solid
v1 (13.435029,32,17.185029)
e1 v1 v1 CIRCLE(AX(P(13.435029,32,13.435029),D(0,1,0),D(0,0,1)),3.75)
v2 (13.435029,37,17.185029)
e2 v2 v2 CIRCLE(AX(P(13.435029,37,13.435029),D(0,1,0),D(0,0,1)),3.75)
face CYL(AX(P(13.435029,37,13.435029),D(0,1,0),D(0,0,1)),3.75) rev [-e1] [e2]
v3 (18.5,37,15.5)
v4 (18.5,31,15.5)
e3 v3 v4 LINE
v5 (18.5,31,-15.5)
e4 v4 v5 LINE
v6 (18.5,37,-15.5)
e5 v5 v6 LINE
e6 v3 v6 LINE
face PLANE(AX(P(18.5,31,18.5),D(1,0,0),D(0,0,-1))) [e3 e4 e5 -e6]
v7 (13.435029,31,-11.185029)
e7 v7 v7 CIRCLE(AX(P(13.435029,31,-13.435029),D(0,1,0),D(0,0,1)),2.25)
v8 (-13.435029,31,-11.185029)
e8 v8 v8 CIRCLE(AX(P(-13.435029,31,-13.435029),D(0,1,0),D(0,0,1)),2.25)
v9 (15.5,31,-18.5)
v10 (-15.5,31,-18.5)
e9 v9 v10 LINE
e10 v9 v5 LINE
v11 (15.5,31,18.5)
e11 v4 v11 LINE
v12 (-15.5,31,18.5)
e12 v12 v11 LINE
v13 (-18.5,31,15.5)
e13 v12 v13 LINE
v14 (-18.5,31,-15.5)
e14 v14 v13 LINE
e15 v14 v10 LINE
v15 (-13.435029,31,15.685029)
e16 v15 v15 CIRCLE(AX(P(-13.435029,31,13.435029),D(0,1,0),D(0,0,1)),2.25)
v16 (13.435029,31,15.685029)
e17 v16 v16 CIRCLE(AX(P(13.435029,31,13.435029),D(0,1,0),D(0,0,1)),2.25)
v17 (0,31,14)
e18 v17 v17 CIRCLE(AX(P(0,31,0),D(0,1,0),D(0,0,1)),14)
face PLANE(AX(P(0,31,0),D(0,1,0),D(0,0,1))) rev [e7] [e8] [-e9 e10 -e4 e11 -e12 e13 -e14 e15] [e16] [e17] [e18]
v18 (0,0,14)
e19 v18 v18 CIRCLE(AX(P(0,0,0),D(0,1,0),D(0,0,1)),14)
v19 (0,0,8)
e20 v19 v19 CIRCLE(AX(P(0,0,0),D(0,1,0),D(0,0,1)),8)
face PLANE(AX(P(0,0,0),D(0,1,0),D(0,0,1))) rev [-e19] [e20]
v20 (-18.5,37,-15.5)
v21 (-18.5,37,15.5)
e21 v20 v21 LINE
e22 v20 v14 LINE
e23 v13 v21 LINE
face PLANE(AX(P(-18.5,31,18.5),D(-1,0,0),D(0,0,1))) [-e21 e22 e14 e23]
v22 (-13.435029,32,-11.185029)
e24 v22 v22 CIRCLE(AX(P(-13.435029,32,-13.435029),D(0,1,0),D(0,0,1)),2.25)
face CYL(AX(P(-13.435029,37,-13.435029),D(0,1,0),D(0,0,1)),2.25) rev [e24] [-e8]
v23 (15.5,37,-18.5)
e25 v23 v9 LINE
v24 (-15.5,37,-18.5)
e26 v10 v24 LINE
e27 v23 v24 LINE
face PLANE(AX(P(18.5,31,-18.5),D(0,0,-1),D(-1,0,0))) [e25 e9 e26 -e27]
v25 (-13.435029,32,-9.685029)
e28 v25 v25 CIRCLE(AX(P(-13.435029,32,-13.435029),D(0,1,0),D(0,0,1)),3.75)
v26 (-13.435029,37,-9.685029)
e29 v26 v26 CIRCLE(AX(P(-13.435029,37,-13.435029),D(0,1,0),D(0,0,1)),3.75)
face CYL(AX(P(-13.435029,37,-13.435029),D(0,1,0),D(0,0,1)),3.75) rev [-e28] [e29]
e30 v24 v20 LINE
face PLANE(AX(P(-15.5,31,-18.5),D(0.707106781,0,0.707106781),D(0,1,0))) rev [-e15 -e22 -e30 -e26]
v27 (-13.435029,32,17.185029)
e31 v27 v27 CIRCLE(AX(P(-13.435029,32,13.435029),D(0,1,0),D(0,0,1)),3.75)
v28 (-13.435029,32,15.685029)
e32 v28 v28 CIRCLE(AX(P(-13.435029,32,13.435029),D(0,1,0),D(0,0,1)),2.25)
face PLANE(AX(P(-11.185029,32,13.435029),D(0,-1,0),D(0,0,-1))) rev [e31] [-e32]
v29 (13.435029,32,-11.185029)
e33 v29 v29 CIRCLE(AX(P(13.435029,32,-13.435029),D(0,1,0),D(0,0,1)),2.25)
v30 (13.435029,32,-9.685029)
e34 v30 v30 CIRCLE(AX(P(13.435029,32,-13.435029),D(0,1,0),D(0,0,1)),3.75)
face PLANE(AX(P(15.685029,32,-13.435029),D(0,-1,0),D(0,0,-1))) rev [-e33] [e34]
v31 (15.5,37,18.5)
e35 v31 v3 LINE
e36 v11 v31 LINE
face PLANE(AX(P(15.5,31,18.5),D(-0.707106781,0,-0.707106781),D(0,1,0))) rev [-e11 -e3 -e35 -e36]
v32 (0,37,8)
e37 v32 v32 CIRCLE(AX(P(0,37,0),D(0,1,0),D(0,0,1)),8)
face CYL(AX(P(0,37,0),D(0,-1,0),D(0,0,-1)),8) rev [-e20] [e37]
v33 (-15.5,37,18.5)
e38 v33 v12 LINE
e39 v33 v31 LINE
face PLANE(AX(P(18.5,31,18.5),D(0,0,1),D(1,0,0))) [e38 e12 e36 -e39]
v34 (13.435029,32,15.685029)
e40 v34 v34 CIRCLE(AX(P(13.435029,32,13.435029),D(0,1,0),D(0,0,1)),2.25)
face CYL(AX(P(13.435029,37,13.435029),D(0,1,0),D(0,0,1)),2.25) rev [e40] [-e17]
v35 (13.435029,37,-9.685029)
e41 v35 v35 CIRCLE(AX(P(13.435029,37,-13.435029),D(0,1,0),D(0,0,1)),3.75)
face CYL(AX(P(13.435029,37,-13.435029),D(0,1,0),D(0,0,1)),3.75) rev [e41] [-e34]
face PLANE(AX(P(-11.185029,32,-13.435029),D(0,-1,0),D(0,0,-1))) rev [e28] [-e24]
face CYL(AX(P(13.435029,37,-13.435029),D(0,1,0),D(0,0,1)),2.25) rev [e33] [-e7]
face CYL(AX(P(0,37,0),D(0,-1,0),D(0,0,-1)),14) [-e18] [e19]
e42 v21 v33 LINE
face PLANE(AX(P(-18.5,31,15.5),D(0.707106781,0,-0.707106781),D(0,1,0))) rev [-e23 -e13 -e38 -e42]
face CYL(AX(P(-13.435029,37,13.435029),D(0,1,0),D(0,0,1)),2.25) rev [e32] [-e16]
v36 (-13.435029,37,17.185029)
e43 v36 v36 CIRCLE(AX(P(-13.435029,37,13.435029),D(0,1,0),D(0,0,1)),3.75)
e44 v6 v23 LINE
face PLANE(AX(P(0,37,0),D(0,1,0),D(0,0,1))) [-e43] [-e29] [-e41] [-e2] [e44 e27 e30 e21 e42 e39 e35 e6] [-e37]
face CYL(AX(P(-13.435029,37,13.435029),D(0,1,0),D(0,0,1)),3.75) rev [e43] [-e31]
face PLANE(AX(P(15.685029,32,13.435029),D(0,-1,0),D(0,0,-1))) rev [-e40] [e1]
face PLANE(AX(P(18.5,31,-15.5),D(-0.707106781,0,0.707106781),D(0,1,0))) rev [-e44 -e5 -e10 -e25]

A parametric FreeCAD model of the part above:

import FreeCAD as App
import Part
import Sketcher
from FreeCAD import Vector


def edges_at(feature, points):
    """Names of the edges that pass closest to the given points."""
    edges = feature.Shape.Edges
    near = lambda p: min(range(len(edges)), key=lambda i: edges[i].distToShape(Part.Vertex(*p))[0])
    return sorted({f"Edge{near(p) + 1}" for p in points})


def add_polygon(sketch, points):
    """Adds a closed chain of lines whose ends are joined by coincident constraints."""
    first, n = sketch.GeometryCount, len(points)
    for a, b in zip(points, points[1:] + points[:1]):
        sketch.addGeometry(Part.LineSegment(App.Vector(*a, 0), App.Vector(*b, 0)), False)
    for i in range(n):
        sketch.addConstraint(Sketcher.Constraint("Coincident", first + i, 2, first + (i + 1) % n, 1))

doc = App.newDocument("Part")
params = doc.addObject("Spreadsheet::Sheet", "Params")
for row, (alias, value) in enumerate([
    ("sketch1_diameter", "28 mm"),
    ("sketch1_diameter2", "16 mm"),
    ("pad1_length", "37 mm"),
    ("sketch2_diameter", "16 mm"),
    ("sketch2_width", "37 mm"),
    ("pad2_length", "6 mm"),
    ("sketch3_diameter", "4.5 mm"),
    ("hole_diameter", "4.5 mm"),
    ("hole_cbore_diameter", "7.5 mm"),
    ("hole_cbore_depth", "5 mm"),
    ("chamfer_size", "3 mm"),
], start=1):
    params.set(f"A{row}", alias)
    params.set(f"B{row}", "=" + value)
    params.setAlias(f"B{row}", alias)

body = doc.addObject("PartDesign::Body", "Body")

sketch1 = body.newObject("Sketcher::SketchObject", "Sketch")
sketch1.AttachmentSupport = (doc.getObject("XZ_Plane"), [""])
sketch1.MapMode = "FlatFace"
sketch1.addGeometry(Part.Circle(Vector(0, 0, 0), Vector(0, 0, 1), 14), False)
sketch1.addGeometry(Part.Circle(Vector(0, 0, 0), Vector(0, 0, 1), 8), False)
sketch1.addConstraint(Sketcher.Constraint("Coincident", 0, 3, -1, 1))
sketch1.addConstraint(Sketcher.Constraint("Coincident", 1, 3, -1, 1))
sketch1.addConstraint(Sketcher.Constraint("Diameter", 0, 28.0))
sketch1.addConstraint(Sketcher.Constraint("Diameter", 1, 16.0))
sketch1.setExpression("Constraints[2]", "Params.sketch1_diameter")
sketch1.setExpression("Constraints[3]", "Params.sketch1_diameter2")
pad1 = body.newObject("PartDesign::Pad", "Pad")
pad1.Profile = sketch1
pad1.setExpression("Length", "Params.pad1_length")
pad1.Reversed = True

sketch2 = body.newObject("Sketcher::SketchObject", "Sketch001")
sketch2.AttachmentSupport = (doc.getObject("XZ_Plane"), [""])
sketch2.MapMode = "FlatFace"
sketch2.AttachmentOffset = App.Placement(Vector(0, 0, -31), App.Rotation())
add_polygon(sketch2, [(-18, -18), (-18, 18), (18, 18), (18, -18)])
sketch2.addGeometry(Part.Circle(Vector(0, 0, 0), Vector(0, 0, 1), 8), False)
sketch2.addConstraint(Sketcher.Constraint("Vertical", 0))
sketch2.addConstraint(Sketcher.Constraint("Horizontal", 1))
sketch2.addConstraint(Sketcher.Constraint("Vertical", 2))
sketch2.addConstraint(Sketcher.Constraint("Horizontal", 3))
sketch2.addConstraint(Sketcher.Constraint("Coincident", 4, 3, -1, 1))
sketch2.addConstraint(Sketcher.Constraint("Symmetric", 0, 2, 2, 2, -1, 1))
sketch2.addConstraint(Sketcher.Constraint("Equal", 3, 0))
sketch2.addConstraint(Sketcher.Constraint("Diameter", 4, 16.0))
sketch2.addConstraint(Sketcher.Constraint("DistanceX", 1, 1, 1, 2, 37.0))
sketch2.setExpression("Constraints[11]", "Params.sketch2_diameter")
sketch2.setExpression("Constraints[12]", "Params.sketch2_width")
pad2 = body.newObject("PartDesign::Pad", "Pad001")
pad2.Profile = sketch2
pad2.setExpression("Length", "Params.pad2_length")
pad2.Reversed = True

sketch3 = body.newObject("Sketcher::SketchObject", "Sketch002")
sketch3.AttachmentSupport = (doc.getObject("XZ_Plane"), [""])
sketch3.MapMode = "FlatFace"
sketch3.AttachmentOffset = App.Placement(Vector(0, 0, -37), App.Rotation())
sketch3.addGeometry(Part.Circle(Vector(13.4, 13.4, 0), Vector(0, 0, 1), 2.2), False)
sketch3.addGeometry(Part.Circle(Vector(-13.4, 13.4, 0), Vector(0, 0, 1), 2.2), False)
sketch3.addGeometry(Part.Circle(Vector(-13.4, -13.4, 0), Vector(0, 0, 1), 2.2), False)
sketch3.addGeometry(Part.Circle(Vector(13.4, -13.4, 0), Vector(0, 0, 1), 2.2), False)
sketch3.addConstraint(Sketcher.Constraint("Equal", 0, 1))
sketch3.addConstraint(Sketcher.Constraint("Equal", 1, 2))
sketch3.addConstraint(Sketcher.Constraint("Equal", 2, 3))
sketch3.addConstraint(Sketcher.Constraint("Symmetric", 0, 3, 2, 3, -1, 1))
sketch3.addConstraint(Sketcher.Constraint("Symmetric", 1, 3, 3, 3, -1, 1))
sketch3.addConstraint(Sketcher.Constraint("Symmetric", 0, 3, 1, 3, -2))
sketch3.addConstraint(Sketcher.Constraint("Diameter", 0, 4.5))
sketch3.addConstraint(Sketcher.Constraint("DistanceX", -1, 1, 0, 3, 13.435029))
sketch3.addConstraint(Sketcher.Constraint("DistanceY", -1, 1, 0, 3, 13.435029))
sketch3.setExpression("Constraints[6]", "Params.sketch3_diameter")
doc.recompute()
hole = body.newObject("PartDesign::Hole", "Hole")
hole.Profile = sketch3
hole.ThreadType = "None"
hole.setExpression("Diameter", "Params.hole_diameter")
hole.DepthType = "ThroughAll"
hole.HoleCutType = "Counterbore"
hole.setExpression("HoleCutDiameter", "Params.hole_cbore_diameter")
hole.setExpression("HoleCutDepth", "Params.hole_cbore_depth")
hole.Reversed = True
doc.recompute()

chamfer = body.newObject("PartDesign::Chamfer", "Chamfer")
chamfer.Base = (hole, edges_at(hole, [
    (-18.5, 34, 18.5),
    (-18.5, 34, -18.5),
    (18.5, 34, -18.5),
    (18.5, 34, 18.5),
]))
chamfer.setExpression("Size", "Params.chamfer_size")

doc.recompute()
